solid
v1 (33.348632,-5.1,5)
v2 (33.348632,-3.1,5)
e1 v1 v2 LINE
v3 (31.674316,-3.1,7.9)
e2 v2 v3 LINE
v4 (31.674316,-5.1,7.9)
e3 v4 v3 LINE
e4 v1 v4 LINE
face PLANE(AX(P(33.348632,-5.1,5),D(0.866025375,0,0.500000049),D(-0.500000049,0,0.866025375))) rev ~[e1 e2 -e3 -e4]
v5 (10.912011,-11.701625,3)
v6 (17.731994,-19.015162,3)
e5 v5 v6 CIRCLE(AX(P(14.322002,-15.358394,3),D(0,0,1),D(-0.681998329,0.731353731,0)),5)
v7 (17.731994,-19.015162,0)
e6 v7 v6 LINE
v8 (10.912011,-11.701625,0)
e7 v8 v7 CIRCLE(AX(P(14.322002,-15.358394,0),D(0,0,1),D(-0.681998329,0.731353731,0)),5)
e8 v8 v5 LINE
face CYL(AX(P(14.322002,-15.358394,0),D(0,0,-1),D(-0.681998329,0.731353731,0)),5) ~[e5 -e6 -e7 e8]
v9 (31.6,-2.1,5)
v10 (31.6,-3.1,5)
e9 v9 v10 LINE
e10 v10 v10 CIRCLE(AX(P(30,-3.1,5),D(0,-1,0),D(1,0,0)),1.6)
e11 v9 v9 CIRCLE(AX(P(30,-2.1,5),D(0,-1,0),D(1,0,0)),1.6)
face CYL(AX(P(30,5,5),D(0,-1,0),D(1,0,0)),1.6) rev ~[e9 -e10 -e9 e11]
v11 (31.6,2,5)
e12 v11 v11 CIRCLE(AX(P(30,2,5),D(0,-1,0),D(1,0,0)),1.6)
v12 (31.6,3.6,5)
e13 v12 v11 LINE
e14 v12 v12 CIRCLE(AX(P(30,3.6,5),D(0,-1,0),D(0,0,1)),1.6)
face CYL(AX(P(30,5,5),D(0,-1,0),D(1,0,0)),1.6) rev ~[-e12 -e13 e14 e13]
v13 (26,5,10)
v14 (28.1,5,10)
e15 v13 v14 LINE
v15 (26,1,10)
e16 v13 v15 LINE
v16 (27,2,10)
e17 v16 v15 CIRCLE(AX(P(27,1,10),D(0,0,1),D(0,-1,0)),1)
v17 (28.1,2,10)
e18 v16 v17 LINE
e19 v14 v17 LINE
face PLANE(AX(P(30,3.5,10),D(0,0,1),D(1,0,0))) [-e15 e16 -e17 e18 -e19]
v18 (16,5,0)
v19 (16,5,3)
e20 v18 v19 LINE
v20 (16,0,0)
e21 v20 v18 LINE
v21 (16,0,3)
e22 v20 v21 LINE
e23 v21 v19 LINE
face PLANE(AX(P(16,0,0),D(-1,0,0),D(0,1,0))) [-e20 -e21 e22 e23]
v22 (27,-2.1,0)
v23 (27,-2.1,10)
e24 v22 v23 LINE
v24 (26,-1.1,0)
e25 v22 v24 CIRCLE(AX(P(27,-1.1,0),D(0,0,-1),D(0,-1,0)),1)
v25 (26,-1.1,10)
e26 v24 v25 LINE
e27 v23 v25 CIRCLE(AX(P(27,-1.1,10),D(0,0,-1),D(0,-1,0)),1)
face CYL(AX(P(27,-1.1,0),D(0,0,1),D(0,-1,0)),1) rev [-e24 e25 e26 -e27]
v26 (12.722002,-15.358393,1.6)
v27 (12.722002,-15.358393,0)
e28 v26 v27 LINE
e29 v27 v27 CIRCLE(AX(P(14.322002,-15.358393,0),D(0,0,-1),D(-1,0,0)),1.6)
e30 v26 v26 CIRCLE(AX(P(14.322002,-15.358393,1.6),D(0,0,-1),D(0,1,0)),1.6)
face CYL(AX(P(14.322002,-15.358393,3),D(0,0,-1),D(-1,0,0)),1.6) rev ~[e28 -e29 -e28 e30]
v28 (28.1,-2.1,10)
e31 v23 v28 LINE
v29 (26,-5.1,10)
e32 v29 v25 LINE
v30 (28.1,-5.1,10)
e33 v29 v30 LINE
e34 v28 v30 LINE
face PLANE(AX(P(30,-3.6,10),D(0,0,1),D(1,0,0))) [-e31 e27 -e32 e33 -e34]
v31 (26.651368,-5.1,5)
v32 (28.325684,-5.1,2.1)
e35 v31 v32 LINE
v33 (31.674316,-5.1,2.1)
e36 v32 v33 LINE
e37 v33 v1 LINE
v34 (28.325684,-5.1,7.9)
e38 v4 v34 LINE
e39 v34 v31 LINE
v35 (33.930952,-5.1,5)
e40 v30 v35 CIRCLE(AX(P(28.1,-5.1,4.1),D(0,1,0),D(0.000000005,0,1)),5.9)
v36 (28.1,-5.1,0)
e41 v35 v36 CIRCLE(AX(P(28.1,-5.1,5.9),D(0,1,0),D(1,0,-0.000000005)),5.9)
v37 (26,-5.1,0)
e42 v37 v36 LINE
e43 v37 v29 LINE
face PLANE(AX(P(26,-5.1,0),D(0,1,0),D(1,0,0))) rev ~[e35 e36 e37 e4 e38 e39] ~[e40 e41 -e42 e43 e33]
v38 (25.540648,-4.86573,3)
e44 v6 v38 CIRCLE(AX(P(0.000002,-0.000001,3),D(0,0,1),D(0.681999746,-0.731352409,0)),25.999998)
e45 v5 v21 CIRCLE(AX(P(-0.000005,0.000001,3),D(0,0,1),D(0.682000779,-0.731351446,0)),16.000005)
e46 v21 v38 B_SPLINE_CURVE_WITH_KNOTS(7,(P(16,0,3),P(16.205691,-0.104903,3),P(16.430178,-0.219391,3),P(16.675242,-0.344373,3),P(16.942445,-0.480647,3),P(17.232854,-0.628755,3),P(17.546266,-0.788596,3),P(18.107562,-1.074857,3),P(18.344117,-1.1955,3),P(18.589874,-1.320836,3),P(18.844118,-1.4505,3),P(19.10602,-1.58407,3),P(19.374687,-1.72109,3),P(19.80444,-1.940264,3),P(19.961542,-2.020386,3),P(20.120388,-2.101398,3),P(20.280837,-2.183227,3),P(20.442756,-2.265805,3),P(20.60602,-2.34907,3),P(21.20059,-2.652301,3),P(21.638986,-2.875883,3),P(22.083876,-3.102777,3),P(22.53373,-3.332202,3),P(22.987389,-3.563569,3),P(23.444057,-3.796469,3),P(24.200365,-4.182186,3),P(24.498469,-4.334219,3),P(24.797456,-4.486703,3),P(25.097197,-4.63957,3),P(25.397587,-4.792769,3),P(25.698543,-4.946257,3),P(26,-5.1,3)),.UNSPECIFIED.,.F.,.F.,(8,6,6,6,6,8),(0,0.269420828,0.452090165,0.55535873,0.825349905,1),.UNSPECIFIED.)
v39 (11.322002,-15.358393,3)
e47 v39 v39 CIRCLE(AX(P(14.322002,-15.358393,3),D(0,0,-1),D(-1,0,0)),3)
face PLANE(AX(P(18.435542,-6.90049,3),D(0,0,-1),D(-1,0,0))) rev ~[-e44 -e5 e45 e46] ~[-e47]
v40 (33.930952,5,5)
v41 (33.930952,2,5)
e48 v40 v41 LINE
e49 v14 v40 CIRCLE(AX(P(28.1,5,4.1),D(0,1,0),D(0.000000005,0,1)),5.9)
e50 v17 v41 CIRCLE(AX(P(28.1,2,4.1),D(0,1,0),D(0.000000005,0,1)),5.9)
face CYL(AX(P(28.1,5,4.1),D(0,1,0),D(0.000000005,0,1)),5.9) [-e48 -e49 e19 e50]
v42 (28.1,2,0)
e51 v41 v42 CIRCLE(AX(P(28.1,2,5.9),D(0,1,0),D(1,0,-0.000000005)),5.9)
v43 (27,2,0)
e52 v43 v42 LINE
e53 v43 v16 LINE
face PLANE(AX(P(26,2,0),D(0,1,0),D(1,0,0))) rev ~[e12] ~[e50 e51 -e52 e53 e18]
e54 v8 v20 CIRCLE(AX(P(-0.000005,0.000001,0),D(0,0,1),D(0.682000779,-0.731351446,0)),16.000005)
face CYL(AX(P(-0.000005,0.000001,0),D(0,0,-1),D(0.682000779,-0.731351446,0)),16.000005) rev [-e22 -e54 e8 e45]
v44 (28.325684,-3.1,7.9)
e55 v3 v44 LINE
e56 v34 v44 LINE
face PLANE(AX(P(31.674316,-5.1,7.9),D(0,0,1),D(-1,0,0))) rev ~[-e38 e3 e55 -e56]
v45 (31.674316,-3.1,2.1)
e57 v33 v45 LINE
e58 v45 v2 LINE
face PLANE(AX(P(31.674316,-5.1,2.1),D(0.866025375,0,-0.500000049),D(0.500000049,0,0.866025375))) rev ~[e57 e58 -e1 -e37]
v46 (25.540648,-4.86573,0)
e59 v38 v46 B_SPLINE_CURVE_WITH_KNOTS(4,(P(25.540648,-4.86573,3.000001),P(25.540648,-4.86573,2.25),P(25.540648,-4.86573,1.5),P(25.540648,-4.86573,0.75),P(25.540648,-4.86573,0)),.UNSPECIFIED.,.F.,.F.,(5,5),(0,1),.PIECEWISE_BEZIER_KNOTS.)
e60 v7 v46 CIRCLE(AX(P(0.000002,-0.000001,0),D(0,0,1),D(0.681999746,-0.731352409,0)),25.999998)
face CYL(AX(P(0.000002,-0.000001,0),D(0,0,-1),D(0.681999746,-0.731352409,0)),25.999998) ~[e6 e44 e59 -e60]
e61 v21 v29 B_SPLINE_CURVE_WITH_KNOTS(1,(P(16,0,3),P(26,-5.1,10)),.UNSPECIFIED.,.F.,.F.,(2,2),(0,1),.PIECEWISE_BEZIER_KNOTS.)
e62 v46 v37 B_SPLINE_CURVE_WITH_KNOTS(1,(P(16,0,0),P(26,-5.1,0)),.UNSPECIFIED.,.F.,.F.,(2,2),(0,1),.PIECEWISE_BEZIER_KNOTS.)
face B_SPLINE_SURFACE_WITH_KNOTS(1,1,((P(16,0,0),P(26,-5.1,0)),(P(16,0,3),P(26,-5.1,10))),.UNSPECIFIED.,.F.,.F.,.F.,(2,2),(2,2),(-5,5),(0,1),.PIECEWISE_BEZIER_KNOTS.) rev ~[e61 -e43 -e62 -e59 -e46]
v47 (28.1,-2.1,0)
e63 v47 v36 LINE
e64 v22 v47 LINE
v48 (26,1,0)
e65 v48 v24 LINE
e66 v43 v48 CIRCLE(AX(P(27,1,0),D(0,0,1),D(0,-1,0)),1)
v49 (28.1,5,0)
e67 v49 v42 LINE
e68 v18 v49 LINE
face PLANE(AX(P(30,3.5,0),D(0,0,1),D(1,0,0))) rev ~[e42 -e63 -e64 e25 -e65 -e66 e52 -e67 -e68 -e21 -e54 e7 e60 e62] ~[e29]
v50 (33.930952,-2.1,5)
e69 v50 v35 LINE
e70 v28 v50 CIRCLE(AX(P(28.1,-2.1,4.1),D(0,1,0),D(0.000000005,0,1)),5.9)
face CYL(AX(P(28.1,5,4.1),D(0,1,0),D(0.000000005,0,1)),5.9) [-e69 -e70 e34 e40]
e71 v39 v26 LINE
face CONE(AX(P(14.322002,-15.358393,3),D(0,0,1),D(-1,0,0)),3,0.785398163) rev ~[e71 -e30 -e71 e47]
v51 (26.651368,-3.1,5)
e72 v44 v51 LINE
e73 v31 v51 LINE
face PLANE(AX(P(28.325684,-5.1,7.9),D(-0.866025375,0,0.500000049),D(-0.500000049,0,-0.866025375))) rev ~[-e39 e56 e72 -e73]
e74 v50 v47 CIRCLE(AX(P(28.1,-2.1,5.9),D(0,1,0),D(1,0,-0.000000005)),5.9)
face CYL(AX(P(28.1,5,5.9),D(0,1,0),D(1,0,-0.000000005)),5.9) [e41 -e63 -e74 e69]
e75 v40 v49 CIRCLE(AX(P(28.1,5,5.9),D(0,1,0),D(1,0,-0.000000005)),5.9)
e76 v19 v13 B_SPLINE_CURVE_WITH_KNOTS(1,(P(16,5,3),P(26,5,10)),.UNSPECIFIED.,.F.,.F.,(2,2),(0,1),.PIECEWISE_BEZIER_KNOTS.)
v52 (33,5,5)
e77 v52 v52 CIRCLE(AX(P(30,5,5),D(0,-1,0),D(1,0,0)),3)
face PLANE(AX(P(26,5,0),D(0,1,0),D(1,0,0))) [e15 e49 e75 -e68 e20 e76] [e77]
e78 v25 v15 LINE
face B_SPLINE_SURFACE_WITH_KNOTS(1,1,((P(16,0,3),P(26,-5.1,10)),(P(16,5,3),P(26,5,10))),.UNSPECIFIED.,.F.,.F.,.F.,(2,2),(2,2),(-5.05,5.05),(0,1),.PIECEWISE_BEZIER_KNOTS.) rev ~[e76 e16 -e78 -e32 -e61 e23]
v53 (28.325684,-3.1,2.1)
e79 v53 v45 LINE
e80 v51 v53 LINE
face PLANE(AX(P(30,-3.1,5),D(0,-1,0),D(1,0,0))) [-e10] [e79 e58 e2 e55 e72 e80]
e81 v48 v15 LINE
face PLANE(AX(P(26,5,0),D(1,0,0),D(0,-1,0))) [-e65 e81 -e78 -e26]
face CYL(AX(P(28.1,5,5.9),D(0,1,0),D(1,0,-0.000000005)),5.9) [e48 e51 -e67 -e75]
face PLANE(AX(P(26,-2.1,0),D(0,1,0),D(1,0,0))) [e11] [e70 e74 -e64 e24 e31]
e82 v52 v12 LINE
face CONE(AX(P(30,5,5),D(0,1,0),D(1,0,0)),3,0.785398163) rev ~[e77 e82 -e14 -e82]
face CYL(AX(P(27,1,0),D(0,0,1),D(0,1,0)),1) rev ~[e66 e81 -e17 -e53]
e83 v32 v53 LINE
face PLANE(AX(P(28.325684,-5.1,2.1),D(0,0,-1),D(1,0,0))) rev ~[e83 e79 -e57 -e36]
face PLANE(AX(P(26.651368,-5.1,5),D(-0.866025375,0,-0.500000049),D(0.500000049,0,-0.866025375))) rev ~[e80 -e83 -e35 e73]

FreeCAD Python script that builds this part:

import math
import FreeCAD as App
import Part
import Sketcher
from FreeCAD import Vector
Q = App.Units.Quantity


def edges_at(feature, points):
    """Names of the edges that pass closest to the given points."""
    edges = feature.Shape.Edges
    near = lambda p: min(range(len(edges)), key=lambda i: edges[i].distToShape(Part.Vertex(*p))[0])
    return sorted({f"Edge{near(p) + 1}" for p in points})


def add_polygon(sketch, points):
    """Adds a closed chain of lines whose ends are joined by coincident constraints."""
    first, n = sketch.GeometryCount, len(points)
    for a, b in zip(points, points[1:] + points[:1]):
        sketch.addGeometry(Part.LineSegment(App.Vector(*a, 0), App.Vector(*b, 0)), False)
    for i in range(n):
        sketch.addConstraint(Sketcher.Constraint("Coincident", first + i, 2, first + (i + 1) % n, 1))

doc = App.newDocument("Part")
body = doc.addObject("PartDesign::Body", "Body")

# Sketch on XY plane
sketch1 = body.newObject("Sketcher::SketchObject", "Sketch")
sketch1.AttachmentSupport = (doc.getObject("XY_Plane"), [""])
sketch1.MapMode = "FlatFace"
sketch1.addGeometry([
    Part.ArcOfCircle(Part.Circle(Vector(0, 0, 0), Vector(0, 0, 1), 16), math.radians(-47), math.radians(0)),  # 0
    Part.ArcOfCircle(Part.Circle(Vector(14.3, -15.4, 0), Vector(0, 0, 1), 5), math.radians(133), math.radians(313)),  # 1
    Part.ArcOfCircle(Part.Circle(Vector(0, 0, 0), Vector(0, 0, 1), 26), math.radians(-47), math.radians(0)),  # 2
    Part.LineSegment(Vector(26, 0, 0), Vector(26, 5, 0)),  # 3
    Part.LineSegment(Vector(26, 5, 0), Vector(16, 5, 0)),  # 4
    Part.LineSegment(Vector(16, 5, 0), Vector(16, 0, 0)),  # 5
], False)
sketch1.addConstraint([
    Sketcher.Constraint("Coincident", 0, 1, 1, 1),
    Sketcher.Constraint("Tangent", 1, 2, 2, 1),
    Sketcher.Constraint("Tangent", 2, 2, 3, 1),
    Sketcher.Constraint("Coincident", 3, 2, 4, 1),
    Sketcher.Constraint("Coincident", 4, 2, 5, 1),
    Sketcher.Constraint("Tangent", 5, 2, 0, 2),
    Sketcher.Constraint("Vertical", 3),
    Sketcher.Constraint("Horizontal", 4),
    Sketcher.Constraint("Vertical", 5),
    Sketcher.Constraint("Coincident", 0, 3, -1, 1),
    Sketcher.Constraint("Coincident", 2, 3, -1, 1),
    Sketcher.Constraint("Radius", 1, 5.0),
    Sketcher.Constraint("Radius", 2, 25.999998),
    Sketcher.Constraint("DistanceY", 3, 1, 3, 2, 5.0),
    Sketcher.Constraint("DistanceX", 2, 3, 1, 3, 14.322001),
    Sketcher.Constraint("DistanceX", -1, 1, 0, 1, 10.912011),
])
pad1 = body.newObject("PartDesign::Pad", "Pad")
pad1.Profile = sketch1
pad1.Length = 3

# Sketch on XY plane
sketch2 = body.newObject("Sketcher::SketchObject", "Sketch001")
sketch2.AttachmentSupport = (doc.getObject("XY_Plane"), [""])
sketch2.MapMode = "FlatFace"
sketch2.AttachmentOffset = App.Placement(Vector(0, 0, 3), App.Rotation())
sketch2.addGeometry(Part.Circle(Vector(14.3, -15.4, 0), Vector(0, 0, 1), 1.6), False)
sketch2.addConstraint([
    Sketcher.Constraint("Diameter", 0, 3.2),
    Sketcher.Constraint("DistanceX", -1, 1, 0, 3, 14.322002),
    Sketcher.Constraint("DistanceY", 0, 3, -1, 1, 15.358393),
])
doc.recompute()
hole = body.newObject("PartDesign::Hole", "Hole")
hole.Profile = sketch2
hole.ThreadType = "None"
hole.Diameter = 3.2
hole.DepthType = "ThroughAll"
hole.HoleCutType = "Countersink"
hole.HoleCutDiameter = 6
hole.HoleCutCountersinkAngle = 90

# Sketch on YZ plane
sketch3 = body.newObject("Sketcher::SketchObject", "Sketch002")
sketch3.AttachmentSupport = (doc.getObject("YZ_Plane"), [""])
sketch3.MapMode = "FlatFace"
sketch3.AttachmentOffset = App.Placement(Vector(0, 0, 16), App.Rotation())
add_polygon(sketch3, [(5, 3), (5, 0), (0, 0), (0, 3)])  # lines 0-3
sketch3.addConstraint([
    Sketcher.Constraint("Vertical", 0),
    Sketcher.Constraint("Horizontal", 1),
    Sketcher.Constraint("Vertical", 2),
    Sketcher.Constraint("Horizontal", 3),
    Sketcher.Constraint("Coincident", 1, 2, -1, 1),
    Sketcher.Constraint("DistanceX", 1, 2, 1, 1, 5.0),
    Sketcher.Constraint("DistanceY", 0, 2, 0, 1, 3.0),
])

# Sketch on YZ plane
sketch4 = body.newObject("Sketcher::SketchObject", "Sketch003")
sketch4.AttachmentSupport = (doc.getObject("YZ_Plane"), [""])
sketch4.MapMode = "FlatFace"
sketch4.AttachmentOffset = App.Placement(Vector(0, 0, 26), App.Rotation())
add_polygon(sketch4, [(-5, 10), (-5, 0), (5, 0), (5, 10)])  # lines 0-3
sketch4.addConstraint([
    Sketcher.Constraint("Vertical", 0),
    Sketcher.Constraint("Horizontal", 1),
    Sketcher.Constraint("Vertical", 2),
    Sketcher.Constraint("Horizontal", 3),
    Sketcher.Constraint("PointOnObject", 0, 2, -1),
    Sketcher.Constraint("DistanceY", 0, 2, 0, 1, 10.0),
    Sketcher.Constraint("DistanceX", 1, 1, 1, 2, 10.1),
    Sketcher.Constraint("DistanceX", -1, 1, 1, 2, 5.0),
])

additiveloft = body.newObject("PartDesign::AdditiveLoft", "AdditiveLoft")
additiveloft.Profile = sketch3
additiveloft.Sections = [sketch4]

# Sketch on XY plane
sketch5 = body.newObject("Sketcher::SketchObject", "Sketch004")
sketch5.AttachmentSupport = (doc.getObject("XY_Plane"), [""])
sketch5.MapMode = "FlatFace"
add_polygon(sketch5, [(26, 5), (26, 2), (34, 2), (34, 5)])  # lines 0-3
add_polygon(sketch5, [(26, -2.1), (26, -5.1), (34, -5.1), (34, -2.1)])  # lines 4-7
sketch5.addConstraint([
    Sketcher.Constraint("Vertical", 0),
    Sketcher.Constraint("Horizontal", 1),
    Sketcher.Constraint("Vertical", 2),
    Sketcher.Constraint("Horizontal", 3),
    Sketcher.Constraint("Vertical", 4),
    Sketcher.Constraint("Horizontal", 5),
    Sketcher.Constraint("Vertical", 6),
    Sketcher.Constraint("Horizontal", 7),
    Sketcher.Constraint("Vertical", 3, 2, 4, 2),
    Sketcher.Constraint("Vertical", 2, 2, 5, 2),
    Sketcher.Constraint("Equal", 2, 4),
    Sketcher.Constraint("DistanceX", 1, 1, 1, 2, 8.0),
    Sketcher.Constraint("DistanceY", 0, 2, 0, 1, 3.0),
    Sketcher.Constraint("DistanceX", -1, 1, 0, 2, 26.0),
    Sketcher.Constraint("DistanceY", -1, 1, 0, 2, 2.0),
    Sketcher.Constraint("DistanceY", 4, 2, -1, 1, 5.1),
])
pad2 = body.newObject("PartDesign::Pad", "Pad001")
pad2.Profile = sketch5
pad2.Length = 10
doc.recompute()

fillet = body.newObject("PartDesign::Fillet", "Fillet")
fillet.Base = (pad2, edges_at(pad2, [(26, 2, 5), (26, -2.1, 5)]))
fillet.Radius = 1

# Sketch on XZ plane
sketch6 = body.newObject("Sketcher::SketchObject", "Sketch005")
sketch6.AttachmentSupport = (doc.getObject("XZ_Plane"), [""])
sketch6.MapMode = "FlatFace"
sketch6.AttachmentOffset = App.Placement(Vector(0, 0, -5), App.Rotation())
sketch6.addGeometry([
    Part.LineSegment(Vector(34, 10, 0), Vector(34, 0, 0)),  # 0
    Part.LineSegment(Vector(34, 0, 0), Vector(28, 0, 0)),  # 1
    Part.ArcOfCircle(Part.Circle(Vector(28, 6, 0), Vector(0, 0, 1), 6), math.radians(-90), math.radians(-9)),  # 2
    Part.ArcOfCircle(Part.Circle(Vector(28, 4, 0), Vector(0, 0, 1), 6), math.radians(9), math.radians(90)),  # 3
    Part.LineSegment(Vector(28, 10, 0), Vector(34, 10, 0)),  # 4
], False)
sketch6.addConstraint([
    Sketcher.Constraint("Coincident", 0, 2, 1, 1),
    Sketcher.Constraint("Tangent", 1, 2, 2, 1),
    Sketcher.Constraint("Coincident", 2, 2, 3, 1),
    Sketcher.Constraint("Tangent", 3, 2, 4, 1),
    Sketcher.Constraint("Coincident", 4, 2, 0, 1),
    Sketcher.Constraint("Vertical", 0),
    Sketcher.Constraint("Horizontal", 1),
    Sketcher.Constraint("Horizontal", 4),
    Sketcher.Constraint("Equal", 2, 3),
    Sketcher.Constraint("PointOnObject", 0, 2, -1),
    Sketcher.Constraint("Vertical", 2, 3, 3, 3),
    Sketcher.Constraint("Radius", 2, 5.9),
    Sketcher.Constraint("DistanceY", 0, 2, 0, 1, 10.0),
    Sketcher.Constraint("DistanceX", 1, 2, 1, 1, 5.9),
    Sketcher.Constraint("DistanceX", -1, 1, 0, 2, 34.0),
])
pocket1 = body.newObject("PartDesign::Pocket", "Pocket")
pocket1.Profile = sketch6
pocket1.Type = "ThroughAll"
pocket1.Reversed = True

# Sketch on XZ plane
sketch7 = body.newObject("Sketcher::SketchObject", "Sketch006")
sketch7.AttachmentSupport = (doc.getObject("XZ_Plane"), [""])
sketch7.MapMode = "FlatFace"
sketch7.AttachmentOffset = App.Placement(Vector(0, 0, -5), App.Rotation())
sketch7.addGeometry(Part.Circle(Vector(30, 5, 0), Vector(0, 0, 1), 1.6), False)
sketch7.addConstraint([
    Sketcher.Constraint("Diameter", 0, 3.2),
    Sketcher.Constraint("DistanceX", -1, 1, 0, 3, 30.0),
    Sketcher.Constraint("DistanceY", -1, 1, 0, 3, 5.0),
])
doc.recompute()
hole2 = body.newObject("PartDesign::Hole", "Hole001")
hole2.Profile = sketch7
hole2.ThreadType = "None"
hole2.Diameter = 3.2
hole2.DepthType = "ThroughAll"
hole2.HoleCutType = "Countersink"
hole2.HoleCutDiameter = 6
hole2.HoleCutCountersinkAngle = 90
hole2.Reversed = True

# Sketch on XZ plane
sketch8 = body.newObject("Sketcher::SketchObject", "Sketch007")
sketch8.AttachmentSupport = (doc.getObject("XZ_Plane"), [""])
sketch8.MapMode = "FlatFace"
sketch8.AttachmentOffset = App.Placement(Vector(0, 0, 5.1), App.Rotation())
add_polygon(sketch8, [(33.3, 5), (31.7, 7.9), (28.3, 7.9), (26.7, 5), (28.3, 2.1), (31.7, 2.1)])  # lines 0-5
sketch8.addConstraint([
    Sketcher.Constraint("Horizontal", 1),
    Sketcher.Constraint("Horizontal", 4),
    Sketcher.Constraint("Parallel", 0, 3),
    Sketcher.Constraint("Parallel", 2, 5),
    Sketcher.Constraint("Horizontal", 2, 2, 5, 2),
    Sketcher.Constraint("Vertical", 1, 2, 3, 2),
    Sketcher.Constraint("Vertical", 0, 2, 4, 2),
    Sketcher.Constraint("Angle", 0, Q("120.000003 deg")),
    Sketcher.Constraint("DistanceY", -1, 1, 2, 2, 5.0),
    Sketcher.Constraint("DistanceY", -1, 1, 0, 2, 7.9),
    Sketcher.Constraint("DistanceX", 1, 2, 1, 1, 3.348632),
    Sketcher.Constraint("DistanceX", -1, 1, 2, 2, 26.651368),
])
pocket2 = body.newObject("PartDesign::Pocket", "Pocket001")
pocket2.Profile = sketch8
pocket2.Length = 2

doc.recompute()
